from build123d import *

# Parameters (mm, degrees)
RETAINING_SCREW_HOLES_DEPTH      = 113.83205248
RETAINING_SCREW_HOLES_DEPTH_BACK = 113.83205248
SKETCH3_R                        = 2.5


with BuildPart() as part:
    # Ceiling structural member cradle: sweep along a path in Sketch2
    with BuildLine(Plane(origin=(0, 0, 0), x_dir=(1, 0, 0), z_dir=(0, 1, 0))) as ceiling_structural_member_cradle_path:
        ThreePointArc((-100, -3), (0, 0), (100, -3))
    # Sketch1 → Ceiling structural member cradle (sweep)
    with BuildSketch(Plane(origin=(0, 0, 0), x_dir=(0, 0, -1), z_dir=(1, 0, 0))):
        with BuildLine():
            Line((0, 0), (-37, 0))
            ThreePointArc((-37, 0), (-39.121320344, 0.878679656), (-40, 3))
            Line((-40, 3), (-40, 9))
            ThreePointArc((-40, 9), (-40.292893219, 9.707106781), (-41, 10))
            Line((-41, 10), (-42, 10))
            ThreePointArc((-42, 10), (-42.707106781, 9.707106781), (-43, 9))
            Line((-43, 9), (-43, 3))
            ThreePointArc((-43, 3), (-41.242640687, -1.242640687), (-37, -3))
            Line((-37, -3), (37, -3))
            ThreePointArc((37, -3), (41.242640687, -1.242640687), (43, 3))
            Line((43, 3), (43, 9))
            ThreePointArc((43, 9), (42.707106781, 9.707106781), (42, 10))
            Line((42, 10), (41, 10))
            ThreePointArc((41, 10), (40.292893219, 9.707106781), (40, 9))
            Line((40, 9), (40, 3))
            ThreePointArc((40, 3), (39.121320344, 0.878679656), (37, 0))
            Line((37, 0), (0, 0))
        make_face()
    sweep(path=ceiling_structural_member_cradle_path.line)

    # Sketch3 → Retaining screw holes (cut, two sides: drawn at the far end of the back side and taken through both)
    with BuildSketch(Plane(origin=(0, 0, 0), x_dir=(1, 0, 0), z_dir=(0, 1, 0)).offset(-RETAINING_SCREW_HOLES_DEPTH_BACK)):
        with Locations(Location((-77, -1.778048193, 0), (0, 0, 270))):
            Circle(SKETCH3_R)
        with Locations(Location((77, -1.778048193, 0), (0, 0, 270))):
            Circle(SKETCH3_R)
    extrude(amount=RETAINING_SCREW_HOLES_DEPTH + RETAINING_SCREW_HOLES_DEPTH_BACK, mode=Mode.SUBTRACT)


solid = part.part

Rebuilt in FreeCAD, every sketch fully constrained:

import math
import FreeCAD as App
import Part
import Sketcher
from FreeCAD import Vector

doc = App.newDocument("Part")
body = doc.addObject("PartDesign::Body", "Body")

sketch1 = body.newObject("Sketcher::SketchObject", "Sketch")
sketch1.AttachmentSupport = (doc.getObject("YZ_Plane"), [""])
sketch1.MapMode = "FlatFace"
sketch1.addGeometry([
    Part.ArcOfCircle(Part.Circle(Vector(3, 37, 0), Vector(0, 0, 1), 3), math.radians(90), math.radians(180)),
    Part.LineSegment(Vector(3, 40, 0), Vector(9, 40, 0)),
    Part.ArcOfCircle(Part.Circle(Vector(9, 41, 0), Vector(0, 0, 1), 1), math.radians(-90), math.radians(0)),
    Part.LineSegment(Vector(10, 41, 0), Vector(10, 42, 0)),
    Part.ArcOfCircle(Part.Circle(Vector(9, 42, 0), Vector(0, 0, 1), 1), math.radians(0), math.radians(90)),
    Part.LineSegment(Vector(9, 43, 0), Vector(3, 43, 0)),
    Part.ArcOfCircle(Part.Circle(Vector(3, 37, 0), Vector(0, 0, 1), 6), math.radians(90), math.radians(180)),
    Part.LineSegment(Vector(-3, 37, 0), Vector(-3, -37, 0)),
    Part.ArcOfCircle(Part.Circle(Vector(3, -37, 0), Vector(0, 0, 1), 6), math.radians(180), math.radians(270)),
    Part.LineSegment(Vector(3, -43, 0), Vector(9, -43, 0)),
    Part.ArcOfCircle(Part.Circle(Vector(9, -42, 0), Vector(0, 0, 1), 1), math.radians(-90), math.radians(0)),
    Part.LineSegment(Vector(10, -42, 0), Vector(10, -41, 0)),
    Part.ArcOfCircle(Part.Circle(Vector(9, -41, 0), Vector(0, 0, 1), 1), math.radians(0), math.radians(90)),
    Part.LineSegment(Vector(9, -40, 0), Vector(3, -40, 0)),
    Part.ArcOfCircle(Part.Circle(Vector(3, -37, 0), Vector(0, 0, 1), 3), math.radians(180), math.radians(270)),
    Part.LineSegment(Vector(0, -37, 0), Vector(0, 37, 0)),
], False)
sketch1.addConstraint([
    Sketcher.Constraint("Tangent", 0, 1, 1, 1),
    Sketcher.Constraint("Tangent", 1, 2, 2, 1),
    Sketcher.Constraint("Tangent", 2, 2, 3, 1),
    Sketcher.Constraint("Tangent", 3, 2, 4, 1),
    Sketcher.Constraint("Tangent", 4, 2, 5, 1),
    Sketcher.Constraint("Tangent", 5, 2, 6, 1),
    Sketcher.Constraint("Tangent", 6, 2, 7, 1),
    Sketcher.Constraint("Tangent", 7, 2, 8, 1),
    Sketcher.Constraint("Tangent", 8, 2, 9, 1),
    Sketcher.Constraint("Tangent", 9, 2, 10, 1),
    Sketcher.Constraint("Tangent", 10, 2, 11, 1),
    Sketcher.Constraint("Tangent", 11, 2, 12, 1),
    Sketcher.Constraint("Tangent", 12, 2, 13, 1),
    Sketcher.Constraint("Tangent", 13, 2, 14, 2),
    Sketcher.Constraint("Tangent", 14, 1, 15, 1),
    Sketcher.Constraint("Tangent", 15, 2, 0, 2),
    Sketcher.Constraint("Horizontal", 1),
    Sketcher.Constraint("Vertical", 3),
    Sketcher.Constraint("Horizontal", 5),
    Sketcher.Constraint("Vertical", 7),
    Sketcher.Constraint("Horizontal", 9),
    Sketcher.Constraint("Vertical", 11),
    Sketcher.Constraint("Horizontal", 13),
    Sketcher.Constraint("Vertical", 15),
    Sketcher.Constraint("Coincident", 6, 3, 0, 3),
    Sketcher.Constraint("Coincident", 14, 3, 8, 3),
    Sketcher.Constraint("Equal", 2, 4),
    Sketcher.Constraint("Equal", 6, 8),
    Sketcher.Constraint("Equal", 4, 10),
    Sketcher.Constraint("Equal", 10, 12),
    Sketcher.Constraint("Symmetric", 14, 1, 15, 2, -1, 1),
    Sketcher.Constraint("Vertical", 4, 3, 10, 3),
    Sketcher.Constraint("Radius", 0, 3.0),
    Sketcher.Constraint("Radius", 2, 1.0),
    Sketcher.Constraint("Radius", 6, 6.0),
    Sketcher.Constraint("DistanceX", 1, 1, 1, 2, 6.0),
    Sketcher.Constraint("DistanceY", 7, 2, 7, 1, 74.0),
])

sketch2 = body.newObject("Sketcher::SketchObject", "Sketch001")
sketch2.AttachmentSupport = (doc.getObject("XZ_Plane"), [""])
sketch2.MapMode = "FlatFace"
sketch2.addGeometry(Part.ArcOfCircle(Part.Circle(Vector(0, 1668, 0), Vector(0, 0, 1), 1668), math.radians(-93.44), math.radians(-86.56)), False)
sketch2.addConstraint([
    Sketcher.Constraint("PointOnObject", 0, 3, -2),
    Sketcher.Constraint("DistanceX", 0, 1, -1, 1, 100.0),
    Sketcher.Constraint("DistanceY", -1, 1, 0, 1, 3.0),
    Sketcher.Constraint("DistanceX", -1, 1, 0, 2, 100.0),
    Sketcher.Constraint("Radius", 0, 1668.166667),
])
doc.recompute()

additivepipe = body.newObject("PartDesign::AdditivePipe", "AdditivePipe")
additivepipe.Profile = sketch1
additivepipe.Spine = (sketch2, ["Edge1"])

sketch3 = body.newObject("Sketcher::SketchObject", "Sketch002")
sketch3.AttachmentSupport = (doc.getObject("XZ_Plane"), [""])
sketch3.MapMode = "FlatFace"
sketch3.addGeometry([
    Part.Circle(Vector(-77, 1.8, 0), Vector(0, 0, 1), 2.5),
    Part.Circle(Vector(77, 1.8, 0), Vector(0, 0, 1), 2.5),
], False)
sketch3.addConstraint([
    Sketcher.Constraint("Equal", 0, 1),
    Sketcher.Constraint("Symmetric", 0, 3, 1, 3, -2),
    Sketcher.Constraint("Diameter", 0, 5.0),
    Sketcher.Constraint("DistanceX", 0, 3, -1, 1, 77.0),
    Sketcher.Constraint("DistanceY", -1, 1, 0, 3, 1.778048),
])
pocket1 = body.newObject("PartDesign::Pocket", "Pocket")
pocket1.Profile = sketch3
pocket1.Type = "ThroughAll"
pocket1.Midplane = True

doc.recompute()
